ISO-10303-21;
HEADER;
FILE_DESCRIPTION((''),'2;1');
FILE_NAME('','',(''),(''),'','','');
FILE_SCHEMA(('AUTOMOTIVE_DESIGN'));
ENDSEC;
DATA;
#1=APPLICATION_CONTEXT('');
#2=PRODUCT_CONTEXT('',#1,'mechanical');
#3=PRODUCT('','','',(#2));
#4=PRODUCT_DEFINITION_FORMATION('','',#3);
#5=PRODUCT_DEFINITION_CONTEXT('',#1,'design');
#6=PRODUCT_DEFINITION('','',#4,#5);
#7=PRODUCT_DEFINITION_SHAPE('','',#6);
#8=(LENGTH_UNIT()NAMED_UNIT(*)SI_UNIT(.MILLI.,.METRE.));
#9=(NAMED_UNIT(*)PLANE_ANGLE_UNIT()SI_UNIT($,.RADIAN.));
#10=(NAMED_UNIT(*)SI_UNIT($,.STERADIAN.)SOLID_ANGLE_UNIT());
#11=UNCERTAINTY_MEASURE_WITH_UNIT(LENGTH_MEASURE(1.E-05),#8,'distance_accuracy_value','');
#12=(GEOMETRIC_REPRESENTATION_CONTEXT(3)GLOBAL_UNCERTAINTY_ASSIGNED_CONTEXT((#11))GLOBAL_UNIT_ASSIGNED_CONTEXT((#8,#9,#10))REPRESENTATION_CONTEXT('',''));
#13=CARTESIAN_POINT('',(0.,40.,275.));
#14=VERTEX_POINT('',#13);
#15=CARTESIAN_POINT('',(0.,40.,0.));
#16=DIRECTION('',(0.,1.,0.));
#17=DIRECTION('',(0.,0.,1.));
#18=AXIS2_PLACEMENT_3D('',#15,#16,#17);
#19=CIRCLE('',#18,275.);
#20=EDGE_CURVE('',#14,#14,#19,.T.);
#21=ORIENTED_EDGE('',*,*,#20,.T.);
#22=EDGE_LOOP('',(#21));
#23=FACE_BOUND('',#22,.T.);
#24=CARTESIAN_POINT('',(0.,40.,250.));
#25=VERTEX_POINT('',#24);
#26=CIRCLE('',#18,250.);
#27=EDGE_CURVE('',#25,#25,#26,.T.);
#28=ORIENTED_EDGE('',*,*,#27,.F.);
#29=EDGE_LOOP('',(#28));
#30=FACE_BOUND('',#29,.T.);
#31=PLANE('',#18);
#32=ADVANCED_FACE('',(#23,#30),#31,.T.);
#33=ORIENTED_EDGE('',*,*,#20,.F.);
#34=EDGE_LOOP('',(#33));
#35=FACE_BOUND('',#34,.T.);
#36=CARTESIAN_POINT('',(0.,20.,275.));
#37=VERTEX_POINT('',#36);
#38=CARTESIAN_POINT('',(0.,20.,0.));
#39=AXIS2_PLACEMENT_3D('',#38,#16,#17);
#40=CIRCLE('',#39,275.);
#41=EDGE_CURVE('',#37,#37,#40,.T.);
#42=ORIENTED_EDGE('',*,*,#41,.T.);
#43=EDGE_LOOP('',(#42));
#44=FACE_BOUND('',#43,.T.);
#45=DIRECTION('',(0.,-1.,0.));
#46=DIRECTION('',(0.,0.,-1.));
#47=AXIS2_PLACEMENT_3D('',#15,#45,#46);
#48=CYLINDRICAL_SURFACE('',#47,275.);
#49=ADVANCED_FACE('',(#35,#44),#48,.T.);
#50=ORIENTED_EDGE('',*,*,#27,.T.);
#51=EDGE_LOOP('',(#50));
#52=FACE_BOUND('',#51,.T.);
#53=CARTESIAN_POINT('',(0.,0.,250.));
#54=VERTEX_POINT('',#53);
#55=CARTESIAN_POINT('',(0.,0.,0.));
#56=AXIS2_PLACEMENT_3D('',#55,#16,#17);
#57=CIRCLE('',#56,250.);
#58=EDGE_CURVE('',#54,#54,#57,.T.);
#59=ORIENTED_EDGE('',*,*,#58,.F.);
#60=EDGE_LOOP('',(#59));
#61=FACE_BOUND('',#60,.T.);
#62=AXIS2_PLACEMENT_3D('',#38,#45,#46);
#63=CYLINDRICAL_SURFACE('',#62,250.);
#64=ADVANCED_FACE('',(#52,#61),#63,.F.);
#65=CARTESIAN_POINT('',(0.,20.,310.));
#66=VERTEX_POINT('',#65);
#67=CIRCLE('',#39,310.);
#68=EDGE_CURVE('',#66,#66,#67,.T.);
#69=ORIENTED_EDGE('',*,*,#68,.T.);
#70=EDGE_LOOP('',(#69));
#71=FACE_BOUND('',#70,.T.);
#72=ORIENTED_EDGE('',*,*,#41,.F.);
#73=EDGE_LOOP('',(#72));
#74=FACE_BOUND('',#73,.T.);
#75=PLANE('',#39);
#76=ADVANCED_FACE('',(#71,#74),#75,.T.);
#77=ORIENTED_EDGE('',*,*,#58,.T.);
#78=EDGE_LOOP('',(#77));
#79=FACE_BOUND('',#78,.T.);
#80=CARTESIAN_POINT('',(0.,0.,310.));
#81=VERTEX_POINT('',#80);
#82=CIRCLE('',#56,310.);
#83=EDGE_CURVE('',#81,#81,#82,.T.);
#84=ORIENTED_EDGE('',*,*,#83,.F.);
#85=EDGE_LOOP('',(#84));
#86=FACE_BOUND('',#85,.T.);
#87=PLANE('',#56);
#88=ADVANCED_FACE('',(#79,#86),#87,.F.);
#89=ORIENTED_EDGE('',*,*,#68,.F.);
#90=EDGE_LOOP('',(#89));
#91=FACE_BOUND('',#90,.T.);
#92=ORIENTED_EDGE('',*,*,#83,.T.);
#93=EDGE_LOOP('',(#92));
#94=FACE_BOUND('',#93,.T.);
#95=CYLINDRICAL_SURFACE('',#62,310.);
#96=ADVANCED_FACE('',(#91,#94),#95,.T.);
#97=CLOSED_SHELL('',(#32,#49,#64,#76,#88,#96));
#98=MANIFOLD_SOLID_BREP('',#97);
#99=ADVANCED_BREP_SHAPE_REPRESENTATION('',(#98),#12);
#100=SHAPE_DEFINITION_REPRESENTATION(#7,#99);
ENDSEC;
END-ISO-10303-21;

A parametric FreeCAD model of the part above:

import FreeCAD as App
import Part
import Sketcher
from FreeCAD import Vector

doc = App.newDocument("Part")
body = doc.addObject("PartDesign::Body", "Body")

# Sketch on XZ plane
sketch1 = body.newObject("Sketcher::SketchObject", "Sketch")
sketch1.AttachmentSupport = (doc.getObject("XZ_Plane"), [""])
sketch1.MapMode = "FlatFace"
sketch1.addGeometry([
    Part.Circle(Vector(0, 0, 0), Vector(0, 0, 1), 310),
    Part.Circle(Vector(0, 0, 0), Vector(0, 0, 1), 250),
], False)
sketch1.addConstraint([
    Sketcher.Constraint("Coincident", 0, 3, -1, 1),
    Sketcher.Constraint("Coincident", 1, 3, -1, 1),
    Sketcher.Constraint("Diameter", 0, 620.0),
    Sketcher.Constraint("Diameter", 1, 500.0),
])
pad1 = body.newObject("PartDesign::Pad", "Pad")
pad1.Profile = sketch1
pad1.Length = 20
pad1.Reversed = True

# Sketch on XZ plane
sketch2 = body.newObject("Sketcher::SketchObject", "Sketch001")
sketch2.AttachmentSupport = (doc.getObject("XZ_Plane"), [""])
sketch2.MapMode = "FlatFace"
sketch2.AttachmentOffset = App.Placement(Vector(0, 0, -20), App.Rotation())
sketch2.addGeometry([
    Part.Circle(Vector(0, 0, 0), Vector(0, 0, 1), 275),
    Part.Circle(Vector(0, 0, 0), Vector(0, 0, 1), 250),
], False)
sketch2.addConstraint([
    Sketcher.Constraint("Coincident", 0, 3, -1, 1),
    Sketcher.Constraint("Coincident", 1, 3, -1, 1),
    Sketcher.Constraint("Diameter", 0, 550.0),
    Sketcher.Constraint("Diameter", 1, 500.0),
])
pad2 = body.newObject("PartDesign::Pad", "Pad001")
pad2.Profile = sketch2
pad2.Length = 20
pad2.Reversed = True

doc.recompute()
